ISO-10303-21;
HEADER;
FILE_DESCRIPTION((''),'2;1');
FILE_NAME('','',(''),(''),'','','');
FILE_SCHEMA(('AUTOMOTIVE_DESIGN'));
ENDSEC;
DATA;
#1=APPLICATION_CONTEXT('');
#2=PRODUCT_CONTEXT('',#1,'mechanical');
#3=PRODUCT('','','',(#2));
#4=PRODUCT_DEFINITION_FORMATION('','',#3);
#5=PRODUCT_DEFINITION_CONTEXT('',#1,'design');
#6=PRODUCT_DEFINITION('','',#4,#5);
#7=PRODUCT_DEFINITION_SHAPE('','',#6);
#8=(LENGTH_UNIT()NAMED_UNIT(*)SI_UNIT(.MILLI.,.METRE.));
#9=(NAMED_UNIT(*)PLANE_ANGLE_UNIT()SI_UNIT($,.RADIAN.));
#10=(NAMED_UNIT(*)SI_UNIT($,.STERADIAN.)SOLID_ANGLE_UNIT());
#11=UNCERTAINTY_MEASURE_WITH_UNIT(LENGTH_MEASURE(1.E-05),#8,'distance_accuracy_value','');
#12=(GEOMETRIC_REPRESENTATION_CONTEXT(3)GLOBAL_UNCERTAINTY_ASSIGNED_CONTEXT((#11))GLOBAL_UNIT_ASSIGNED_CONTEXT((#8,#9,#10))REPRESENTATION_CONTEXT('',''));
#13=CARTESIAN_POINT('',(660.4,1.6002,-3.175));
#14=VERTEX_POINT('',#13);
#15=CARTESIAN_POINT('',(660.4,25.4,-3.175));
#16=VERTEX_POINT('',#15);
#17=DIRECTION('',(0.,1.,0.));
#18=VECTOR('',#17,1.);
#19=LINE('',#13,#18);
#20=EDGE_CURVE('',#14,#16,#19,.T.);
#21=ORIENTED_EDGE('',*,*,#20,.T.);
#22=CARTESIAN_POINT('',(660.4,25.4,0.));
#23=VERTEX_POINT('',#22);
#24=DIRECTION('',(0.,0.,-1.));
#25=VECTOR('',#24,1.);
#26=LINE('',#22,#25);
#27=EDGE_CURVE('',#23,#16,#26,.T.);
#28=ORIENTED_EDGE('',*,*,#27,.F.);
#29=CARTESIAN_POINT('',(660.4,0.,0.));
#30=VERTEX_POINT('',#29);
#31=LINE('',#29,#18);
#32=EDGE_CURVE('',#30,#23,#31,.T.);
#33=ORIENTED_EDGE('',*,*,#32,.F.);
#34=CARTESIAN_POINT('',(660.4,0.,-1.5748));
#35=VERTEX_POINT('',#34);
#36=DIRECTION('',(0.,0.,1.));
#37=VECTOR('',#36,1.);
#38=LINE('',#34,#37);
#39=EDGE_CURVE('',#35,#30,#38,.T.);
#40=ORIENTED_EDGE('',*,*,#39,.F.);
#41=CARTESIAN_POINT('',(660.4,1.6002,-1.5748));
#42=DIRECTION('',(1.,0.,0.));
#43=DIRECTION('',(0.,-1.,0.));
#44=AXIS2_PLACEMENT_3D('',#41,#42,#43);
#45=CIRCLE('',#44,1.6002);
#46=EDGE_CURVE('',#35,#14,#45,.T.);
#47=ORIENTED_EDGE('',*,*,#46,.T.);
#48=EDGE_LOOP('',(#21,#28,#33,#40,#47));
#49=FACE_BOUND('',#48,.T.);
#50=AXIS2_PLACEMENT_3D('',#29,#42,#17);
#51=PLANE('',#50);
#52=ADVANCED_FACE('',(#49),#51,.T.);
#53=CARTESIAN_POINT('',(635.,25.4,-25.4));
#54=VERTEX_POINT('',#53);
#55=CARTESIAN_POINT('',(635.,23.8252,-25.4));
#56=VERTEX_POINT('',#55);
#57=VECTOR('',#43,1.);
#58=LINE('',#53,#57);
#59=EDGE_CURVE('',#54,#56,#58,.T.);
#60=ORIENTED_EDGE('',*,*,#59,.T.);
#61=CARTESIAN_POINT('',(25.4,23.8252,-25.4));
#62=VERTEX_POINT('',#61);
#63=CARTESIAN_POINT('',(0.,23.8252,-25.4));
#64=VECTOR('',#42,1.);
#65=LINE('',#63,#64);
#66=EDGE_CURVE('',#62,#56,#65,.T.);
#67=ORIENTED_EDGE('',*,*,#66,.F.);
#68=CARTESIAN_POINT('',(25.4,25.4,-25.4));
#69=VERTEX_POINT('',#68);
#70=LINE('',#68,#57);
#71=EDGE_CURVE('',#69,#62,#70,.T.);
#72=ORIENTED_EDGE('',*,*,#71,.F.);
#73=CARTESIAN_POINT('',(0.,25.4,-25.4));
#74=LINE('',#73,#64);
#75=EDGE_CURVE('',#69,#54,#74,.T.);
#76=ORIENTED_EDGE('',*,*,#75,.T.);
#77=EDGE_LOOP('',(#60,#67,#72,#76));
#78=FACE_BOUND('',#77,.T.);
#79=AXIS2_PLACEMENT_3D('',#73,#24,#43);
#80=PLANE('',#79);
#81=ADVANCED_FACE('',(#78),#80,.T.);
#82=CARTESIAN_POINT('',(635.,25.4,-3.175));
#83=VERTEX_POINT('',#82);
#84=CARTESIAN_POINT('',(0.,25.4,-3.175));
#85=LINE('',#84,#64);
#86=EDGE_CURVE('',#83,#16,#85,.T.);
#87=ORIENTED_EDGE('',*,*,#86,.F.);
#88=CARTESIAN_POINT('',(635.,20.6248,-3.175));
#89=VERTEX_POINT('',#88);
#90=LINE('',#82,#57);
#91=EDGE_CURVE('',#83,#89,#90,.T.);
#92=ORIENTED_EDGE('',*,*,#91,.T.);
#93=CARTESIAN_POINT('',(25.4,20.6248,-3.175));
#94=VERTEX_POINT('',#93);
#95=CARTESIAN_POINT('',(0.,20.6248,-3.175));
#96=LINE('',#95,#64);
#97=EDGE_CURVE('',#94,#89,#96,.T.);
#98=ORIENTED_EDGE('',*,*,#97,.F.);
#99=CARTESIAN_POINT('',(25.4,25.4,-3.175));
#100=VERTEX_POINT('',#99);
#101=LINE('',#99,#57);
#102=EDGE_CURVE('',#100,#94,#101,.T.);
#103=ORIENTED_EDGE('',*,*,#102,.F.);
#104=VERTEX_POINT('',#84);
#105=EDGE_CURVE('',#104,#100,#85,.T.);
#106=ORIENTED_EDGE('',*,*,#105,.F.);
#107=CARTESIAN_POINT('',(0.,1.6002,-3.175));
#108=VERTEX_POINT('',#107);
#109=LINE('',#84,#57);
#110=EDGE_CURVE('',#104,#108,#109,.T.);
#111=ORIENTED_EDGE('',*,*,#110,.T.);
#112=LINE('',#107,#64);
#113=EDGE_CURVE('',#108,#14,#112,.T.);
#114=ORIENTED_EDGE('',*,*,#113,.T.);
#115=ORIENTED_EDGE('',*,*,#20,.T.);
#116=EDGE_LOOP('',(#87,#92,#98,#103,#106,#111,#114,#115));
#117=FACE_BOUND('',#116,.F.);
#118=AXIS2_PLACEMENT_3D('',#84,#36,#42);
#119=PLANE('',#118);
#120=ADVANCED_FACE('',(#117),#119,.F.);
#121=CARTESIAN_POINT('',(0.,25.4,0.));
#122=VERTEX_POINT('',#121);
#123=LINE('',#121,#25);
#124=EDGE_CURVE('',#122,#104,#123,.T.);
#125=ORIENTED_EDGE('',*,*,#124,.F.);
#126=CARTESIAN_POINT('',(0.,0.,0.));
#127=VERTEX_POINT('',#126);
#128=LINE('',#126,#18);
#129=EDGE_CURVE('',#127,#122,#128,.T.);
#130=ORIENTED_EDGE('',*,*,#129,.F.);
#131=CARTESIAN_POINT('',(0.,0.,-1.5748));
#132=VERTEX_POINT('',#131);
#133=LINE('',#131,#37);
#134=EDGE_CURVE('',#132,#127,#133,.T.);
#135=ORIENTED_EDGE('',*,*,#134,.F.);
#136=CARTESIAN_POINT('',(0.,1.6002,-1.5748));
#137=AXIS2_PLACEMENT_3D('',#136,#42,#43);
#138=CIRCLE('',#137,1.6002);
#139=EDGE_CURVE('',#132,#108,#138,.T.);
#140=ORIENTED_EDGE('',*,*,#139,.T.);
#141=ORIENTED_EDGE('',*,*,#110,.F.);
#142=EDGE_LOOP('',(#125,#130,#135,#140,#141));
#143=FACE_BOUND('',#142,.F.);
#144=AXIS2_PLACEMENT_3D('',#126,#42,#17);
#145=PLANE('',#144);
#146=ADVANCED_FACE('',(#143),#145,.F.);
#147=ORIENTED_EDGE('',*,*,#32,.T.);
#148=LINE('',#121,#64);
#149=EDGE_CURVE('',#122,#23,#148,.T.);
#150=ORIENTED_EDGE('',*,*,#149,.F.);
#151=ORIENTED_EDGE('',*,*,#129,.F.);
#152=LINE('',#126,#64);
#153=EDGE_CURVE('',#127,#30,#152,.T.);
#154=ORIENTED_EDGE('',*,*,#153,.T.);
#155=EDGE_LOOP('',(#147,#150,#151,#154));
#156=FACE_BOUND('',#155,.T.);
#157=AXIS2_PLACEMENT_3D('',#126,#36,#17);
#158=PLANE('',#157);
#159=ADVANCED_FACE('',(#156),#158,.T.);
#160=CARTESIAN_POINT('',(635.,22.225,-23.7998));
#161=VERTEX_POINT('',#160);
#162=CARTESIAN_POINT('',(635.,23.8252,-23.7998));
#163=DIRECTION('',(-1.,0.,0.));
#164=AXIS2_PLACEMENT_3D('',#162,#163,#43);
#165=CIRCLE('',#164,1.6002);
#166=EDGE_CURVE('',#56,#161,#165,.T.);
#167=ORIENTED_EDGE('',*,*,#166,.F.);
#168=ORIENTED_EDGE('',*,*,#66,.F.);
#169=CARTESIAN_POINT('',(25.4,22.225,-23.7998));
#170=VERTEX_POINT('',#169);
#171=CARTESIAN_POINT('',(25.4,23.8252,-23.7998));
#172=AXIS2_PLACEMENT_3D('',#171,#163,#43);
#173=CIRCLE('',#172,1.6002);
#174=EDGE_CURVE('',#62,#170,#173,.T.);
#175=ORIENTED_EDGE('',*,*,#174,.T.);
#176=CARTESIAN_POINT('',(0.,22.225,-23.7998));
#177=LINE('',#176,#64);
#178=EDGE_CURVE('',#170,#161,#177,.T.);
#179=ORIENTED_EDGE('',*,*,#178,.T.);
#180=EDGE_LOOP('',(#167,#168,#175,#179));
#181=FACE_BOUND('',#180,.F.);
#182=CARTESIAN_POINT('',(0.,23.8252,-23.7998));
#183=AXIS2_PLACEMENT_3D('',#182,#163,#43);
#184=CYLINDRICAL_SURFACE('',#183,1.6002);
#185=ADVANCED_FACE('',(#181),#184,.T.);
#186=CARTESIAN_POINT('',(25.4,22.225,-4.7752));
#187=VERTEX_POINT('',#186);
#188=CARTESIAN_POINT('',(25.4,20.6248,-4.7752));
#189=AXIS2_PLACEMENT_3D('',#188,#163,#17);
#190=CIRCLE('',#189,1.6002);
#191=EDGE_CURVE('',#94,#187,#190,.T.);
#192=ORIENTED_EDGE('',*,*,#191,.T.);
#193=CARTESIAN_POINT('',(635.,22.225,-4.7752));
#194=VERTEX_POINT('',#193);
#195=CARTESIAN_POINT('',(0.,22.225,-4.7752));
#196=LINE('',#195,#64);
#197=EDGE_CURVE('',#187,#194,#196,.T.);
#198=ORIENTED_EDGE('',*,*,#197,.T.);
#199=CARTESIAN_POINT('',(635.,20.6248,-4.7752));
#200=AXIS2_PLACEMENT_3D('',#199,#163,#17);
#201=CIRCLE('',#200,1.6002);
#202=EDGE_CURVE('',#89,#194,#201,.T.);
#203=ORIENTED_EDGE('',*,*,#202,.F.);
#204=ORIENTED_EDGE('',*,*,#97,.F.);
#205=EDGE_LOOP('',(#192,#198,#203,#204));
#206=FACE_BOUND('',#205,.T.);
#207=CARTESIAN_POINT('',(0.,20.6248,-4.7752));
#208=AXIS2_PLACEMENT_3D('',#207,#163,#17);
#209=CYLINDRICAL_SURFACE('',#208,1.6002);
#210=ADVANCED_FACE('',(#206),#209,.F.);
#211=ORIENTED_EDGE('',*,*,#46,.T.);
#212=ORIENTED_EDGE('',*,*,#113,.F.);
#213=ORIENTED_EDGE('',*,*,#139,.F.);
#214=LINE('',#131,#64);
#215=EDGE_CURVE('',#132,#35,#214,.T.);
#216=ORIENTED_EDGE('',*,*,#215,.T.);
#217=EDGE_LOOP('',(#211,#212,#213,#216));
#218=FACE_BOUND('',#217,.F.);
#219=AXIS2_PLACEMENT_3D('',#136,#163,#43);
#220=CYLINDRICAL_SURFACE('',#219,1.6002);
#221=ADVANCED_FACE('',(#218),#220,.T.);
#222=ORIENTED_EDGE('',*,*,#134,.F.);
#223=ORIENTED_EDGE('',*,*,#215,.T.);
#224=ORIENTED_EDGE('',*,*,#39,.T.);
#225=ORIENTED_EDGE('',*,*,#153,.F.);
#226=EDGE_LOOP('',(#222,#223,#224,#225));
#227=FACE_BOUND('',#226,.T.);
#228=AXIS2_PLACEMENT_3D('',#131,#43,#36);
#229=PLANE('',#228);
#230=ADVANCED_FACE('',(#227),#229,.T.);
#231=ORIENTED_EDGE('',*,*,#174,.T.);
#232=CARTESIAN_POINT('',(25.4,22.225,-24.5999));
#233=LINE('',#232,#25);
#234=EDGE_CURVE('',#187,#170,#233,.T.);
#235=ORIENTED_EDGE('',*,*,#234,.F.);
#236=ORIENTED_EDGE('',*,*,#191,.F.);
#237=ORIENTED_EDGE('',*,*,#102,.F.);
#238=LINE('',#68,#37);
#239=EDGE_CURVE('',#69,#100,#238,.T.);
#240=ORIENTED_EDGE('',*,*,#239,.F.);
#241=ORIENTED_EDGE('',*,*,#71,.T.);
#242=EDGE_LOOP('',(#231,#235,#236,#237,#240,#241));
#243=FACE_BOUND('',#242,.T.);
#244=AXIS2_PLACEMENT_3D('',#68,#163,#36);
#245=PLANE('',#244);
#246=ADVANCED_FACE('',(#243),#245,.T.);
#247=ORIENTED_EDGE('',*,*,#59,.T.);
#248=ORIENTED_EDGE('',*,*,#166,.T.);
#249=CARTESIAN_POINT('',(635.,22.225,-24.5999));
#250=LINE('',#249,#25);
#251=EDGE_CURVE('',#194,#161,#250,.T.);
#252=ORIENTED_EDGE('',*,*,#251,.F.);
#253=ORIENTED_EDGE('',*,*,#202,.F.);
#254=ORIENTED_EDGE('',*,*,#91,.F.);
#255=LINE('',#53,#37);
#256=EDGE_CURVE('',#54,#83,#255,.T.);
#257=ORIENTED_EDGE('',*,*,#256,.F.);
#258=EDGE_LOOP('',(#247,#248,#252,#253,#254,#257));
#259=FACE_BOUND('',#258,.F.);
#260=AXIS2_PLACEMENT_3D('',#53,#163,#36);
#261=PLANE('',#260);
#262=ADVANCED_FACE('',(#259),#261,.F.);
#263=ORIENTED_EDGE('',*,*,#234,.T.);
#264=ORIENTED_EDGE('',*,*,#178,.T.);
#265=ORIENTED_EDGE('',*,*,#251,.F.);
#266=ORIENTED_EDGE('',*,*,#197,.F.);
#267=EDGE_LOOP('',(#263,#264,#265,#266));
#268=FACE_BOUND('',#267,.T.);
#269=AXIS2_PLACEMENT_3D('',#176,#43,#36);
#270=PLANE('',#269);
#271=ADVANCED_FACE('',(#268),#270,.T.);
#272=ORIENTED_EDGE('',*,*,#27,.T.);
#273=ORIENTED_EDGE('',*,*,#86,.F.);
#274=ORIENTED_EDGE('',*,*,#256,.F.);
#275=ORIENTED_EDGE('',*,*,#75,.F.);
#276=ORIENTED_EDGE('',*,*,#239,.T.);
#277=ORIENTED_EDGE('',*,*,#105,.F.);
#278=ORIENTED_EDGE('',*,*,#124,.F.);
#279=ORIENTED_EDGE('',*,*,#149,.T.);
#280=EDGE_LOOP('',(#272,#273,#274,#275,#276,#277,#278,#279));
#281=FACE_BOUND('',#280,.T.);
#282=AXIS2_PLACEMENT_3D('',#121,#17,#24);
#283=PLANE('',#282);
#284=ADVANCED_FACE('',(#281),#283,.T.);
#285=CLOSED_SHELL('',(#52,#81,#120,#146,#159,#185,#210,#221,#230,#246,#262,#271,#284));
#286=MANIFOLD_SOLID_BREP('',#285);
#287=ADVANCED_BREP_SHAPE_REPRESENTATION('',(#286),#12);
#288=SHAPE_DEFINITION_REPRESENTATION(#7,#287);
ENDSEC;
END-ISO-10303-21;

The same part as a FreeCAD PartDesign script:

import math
import FreeCAD as App
import Part
import Sketcher

V = App.Vector
Q = App.Units.Quantity

doc = App.newDocument("Part")
params = doc.addObject("Spreadsheet::Sheet", "Params")
for row, (alias, value) in enumerate([
    ("sketch1_width", "1 in"),
    ("sketch1_radius", "0.063 in"),
    ("pad1_length", "26 in"),
    ("sketch2_width", "1 in"),
    ("sketch2_height", "0.875 in"),
    ("pocket1_length", "1 in"),
], start=1):
    params.set(f"A{row}", alias)
    params.set(f"B{row}", "=" + value)
    params.setAlias(f"B{row}", alias)

body = doc.addObject("PartDesign::Body", "Body")

sketch1 = body.newObject("Sketcher::SketchObject", "Sketch")
sketch1.AttachmentSupport = (doc.getObject("YZ_Plane"), [""])
sketch1.MapMode = "FlatFace"
sketch1.addGeometry(Part.LineSegment(V(25.4, 0, 0), V(0, 0, 0)), False)
sketch1.addGeometry(Part.LineSegment(V(0, 0, 0), V(0, -1.5748, 0)), False)
sketch1.addGeometry(Part.ArcOfCircle(Part.Circle(V(1.6002, -1.5748, 0), V(0, 0, 1), 1.6002), math.radians(180), math.radians(270)), False)
sketch1.addGeometry(Part.LineSegment(V(1.6002, -3.175, 0), V(20.6248, -3.175, 0)), False)
sketch1.addGeometry(Part.ArcOfCircle(Part.Circle(V(20.6248, -4.7752, 0), V(0, 0, 1), 1.6002), math.radians(0), math.radians(90)), False)
sketch1.addGeometry(Part.LineSegment(V(22.225, -4.7752, 0), V(22.225, -23.7998, 0)), False)
sketch1.addGeometry(Part.ArcOfCircle(Part.Circle(V(23.8252, -23.7998, 0), V(0, 0, 1), 1.6002), math.radians(180), math.radians(270)), False)
sketch1.addGeometry(Part.LineSegment(V(23.8252, -25.4, 0), V(25.4, -25.4, 0)), False)
sketch1.addGeometry(Part.LineSegment(V(25.4, -25.4, 0), V(25.4, 0, 0)), False)
sketch1.addConstraint(Sketcher.Constraint("Coincident", 0, 2, 1, 1))
sketch1.addConstraint(Sketcher.Constraint("Tangent", 1, 2, 2, 1))
sketch1.addConstraint(Sketcher.Constraint("Tangent", 2, 2, 3, 1))
sketch1.addConstraint(Sketcher.Constraint("Tangent", 3, 2, 4, 2))
sketch1.addConstraint(Sketcher.Constraint("Tangent", 4, 1, 5, 1))
sketch1.addConstraint(Sketcher.Constraint("Tangent", 5, 2, 6, 1))
sketch1.addConstraint(Sketcher.Constraint("Tangent", 6, 2, 7, 1))
sketch1.addConstraint(Sketcher.Constraint("Coincident", 7, 2, 8, 1))
sketch1.addConstraint(Sketcher.Constraint("Coincident", 8, 2, 0, 1))
sketch1.addConstraint(Sketcher.Constraint("Horizontal", 0))
sketch1.addConstraint(Sketcher.Constraint("Vertical", 1))
sketch1.addConstraint(Sketcher.Constraint("Horizontal", 3))
sketch1.addConstraint(Sketcher.Constraint("Vertical", 5))
sketch1.addConstraint(Sketcher.Constraint("Horizontal", 7))
sketch1.addConstraint(Sketcher.Constraint("Vertical", 8))
sketch1.addConstraint(Sketcher.Constraint("Coincident", 0, 2, -1, 1))
sketch1.addConstraint(Sketcher.Constraint("Equal", 2, 4))
sketch1.addConstraint(Sketcher.Constraint("Equal", 4, 6))
sketch1.addConstraint(Sketcher.Constraint("Equal", 7, 1))
sketch1.addConstraint(Sketcher.Constraint("Equal", 3, 5))
sketch1.addConstraint(Sketcher.Constraint("DistanceX", 0, 2, 0, 1, Q("1 in")))
sketch1.addConstraint(Sketcher.Constraint("Radius", 2, Q("0.063 in")))
sketch1.addConstraint(Sketcher.Constraint("DistanceY", 2, 2, -1, 1, Q("0.125 in")))
sketch1.setExpression("Constraints[20]", "Params.sketch1_width")
sketch1.setExpression("Constraints[21]", "Params.sketch1_radius")
pad1 = body.newObject("PartDesign::Pad", "Pad")
pad1.Profile = sketch1
pad1.setExpression("Length", "Params.pad1_length")

sketch2 = body.newObject("Sketcher::SketchObject", "Sketch001")
sketch2.AttachmentSupport = (doc.getObject("XZ_Plane"), [""])
sketch2.MapMode = "FlatFace"
sketch2.AttachmentOffset = App.Placement(V(0, 0, -1 * 25.4), App.Rotation())
sketch2.addGeometry(Part.LineSegment(V(25.4, -25.4, 0), V(0, -25.4, 0)), False)
sketch2.addGeometry(Part.LineSegment(V(0, -25.4, 0), V(0, -3.175, 0)), False)
sketch2.addGeometry(Part.LineSegment(V(0, -3.175, 0), V(25.4, -3.175, 0)), False)
sketch2.addGeometry(Part.LineSegment(V(25.4, -3.175, 0), V(25.4, -25.4, 0)), False)
sketch2.addGeometry(Part.LineSegment(V(635, -25.4, 0), V(635, -3.175, 0)), False)
sketch2.addGeometry(Part.LineSegment(V(635, -3.175, 0), V(660.4, -3.175, 0)), False)
sketch2.addGeometry(Part.LineSegment(V(660.4, -3.175, 0), V(660.4, -25.4, 0)), False)
sketch2.addGeometry(Part.LineSegment(V(660.4, -25.4, 0), V(635, -25.4, 0)), False)
sketch2.addConstraint(Sketcher.Constraint("Coincident", 0, 2, 1, 1))
sketch2.addConstraint(Sketcher.Constraint("Coincident", 1, 2, 2, 1))
sketch2.addConstraint(Sketcher.Constraint("Coincident", 2, 2, 3, 1))
sketch2.addConstraint(Sketcher.Constraint("Coincident", 3, 2, 0, 1))
sketch2.addConstraint(Sketcher.Constraint("Coincident", 4, 2, 5, 1))
sketch2.addConstraint(Sketcher.Constraint("Coincident", 5, 2, 6, 1))
sketch2.addConstraint(Sketcher.Constraint("Coincident", 6, 2, 7, 1))
sketch2.addConstraint(Sketcher.Constraint("Coincident", 7, 2, 4, 1))
sketch2.addConstraint(Sketcher.Constraint("Horizontal", 0))
sketch2.addConstraint(Sketcher.Constraint("Vertical", 1))
sketch2.addConstraint(Sketcher.Constraint("Horizontal", 2))
sketch2.addConstraint(Sketcher.Constraint("Vertical", 3))
sketch2.addConstraint(Sketcher.Constraint("Vertical", 4))
sketch2.addConstraint(Sketcher.Constraint("Horizontal", 5))
sketch2.addConstraint(Sketcher.Constraint("Vertical", 6))
sketch2.addConstraint(Sketcher.Constraint("Horizontal", 7))
sketch2.addConstraint(Sketcher.Constraint("PointOnObject", 0, 2, -2))
sketch2.addConstraint(Sketcher.Constraint("Horizontal", 2, 2, 4, 2))
sketch2.addConstraint(Sketcher.Constraint("Horizontal", 3, 2, 6, 2))
sketch2.addConstraint(Sketcher.Constraint("Equal", 2, 5))
sketch2.addConstraint(Sketcher.Constraint("DistanceX", 0, 2, 0, 1, Q("1 in")))
sketch2.addConstraint(Sketcher.Constraint("DistanceY", 0, 2, -1, 1, Q("1 in")))
sketch2.addConstraint(Sketcher.Constraint("DistanceY", 1, 1, 1, 2, Q("0.875 in")))
sketch2.addConstraint(Sketcher.Constraint("DistanceX", -1, 1, 4, 2, Q("25 in")))
sketch2.setExpression("Constraints[20]", "Params.sketch2_width")
sketch2.setExpression("Constraints[22]", "Params.sketch2_height")
pocket1 = body.newObject("PartDesign::Pocket", "Pocket")
pocket1.Profile = sketch2
pocket1.setExpression("Length", "Params.pocket1_length")
pocket1.Reversed = True

doc.recompute()
